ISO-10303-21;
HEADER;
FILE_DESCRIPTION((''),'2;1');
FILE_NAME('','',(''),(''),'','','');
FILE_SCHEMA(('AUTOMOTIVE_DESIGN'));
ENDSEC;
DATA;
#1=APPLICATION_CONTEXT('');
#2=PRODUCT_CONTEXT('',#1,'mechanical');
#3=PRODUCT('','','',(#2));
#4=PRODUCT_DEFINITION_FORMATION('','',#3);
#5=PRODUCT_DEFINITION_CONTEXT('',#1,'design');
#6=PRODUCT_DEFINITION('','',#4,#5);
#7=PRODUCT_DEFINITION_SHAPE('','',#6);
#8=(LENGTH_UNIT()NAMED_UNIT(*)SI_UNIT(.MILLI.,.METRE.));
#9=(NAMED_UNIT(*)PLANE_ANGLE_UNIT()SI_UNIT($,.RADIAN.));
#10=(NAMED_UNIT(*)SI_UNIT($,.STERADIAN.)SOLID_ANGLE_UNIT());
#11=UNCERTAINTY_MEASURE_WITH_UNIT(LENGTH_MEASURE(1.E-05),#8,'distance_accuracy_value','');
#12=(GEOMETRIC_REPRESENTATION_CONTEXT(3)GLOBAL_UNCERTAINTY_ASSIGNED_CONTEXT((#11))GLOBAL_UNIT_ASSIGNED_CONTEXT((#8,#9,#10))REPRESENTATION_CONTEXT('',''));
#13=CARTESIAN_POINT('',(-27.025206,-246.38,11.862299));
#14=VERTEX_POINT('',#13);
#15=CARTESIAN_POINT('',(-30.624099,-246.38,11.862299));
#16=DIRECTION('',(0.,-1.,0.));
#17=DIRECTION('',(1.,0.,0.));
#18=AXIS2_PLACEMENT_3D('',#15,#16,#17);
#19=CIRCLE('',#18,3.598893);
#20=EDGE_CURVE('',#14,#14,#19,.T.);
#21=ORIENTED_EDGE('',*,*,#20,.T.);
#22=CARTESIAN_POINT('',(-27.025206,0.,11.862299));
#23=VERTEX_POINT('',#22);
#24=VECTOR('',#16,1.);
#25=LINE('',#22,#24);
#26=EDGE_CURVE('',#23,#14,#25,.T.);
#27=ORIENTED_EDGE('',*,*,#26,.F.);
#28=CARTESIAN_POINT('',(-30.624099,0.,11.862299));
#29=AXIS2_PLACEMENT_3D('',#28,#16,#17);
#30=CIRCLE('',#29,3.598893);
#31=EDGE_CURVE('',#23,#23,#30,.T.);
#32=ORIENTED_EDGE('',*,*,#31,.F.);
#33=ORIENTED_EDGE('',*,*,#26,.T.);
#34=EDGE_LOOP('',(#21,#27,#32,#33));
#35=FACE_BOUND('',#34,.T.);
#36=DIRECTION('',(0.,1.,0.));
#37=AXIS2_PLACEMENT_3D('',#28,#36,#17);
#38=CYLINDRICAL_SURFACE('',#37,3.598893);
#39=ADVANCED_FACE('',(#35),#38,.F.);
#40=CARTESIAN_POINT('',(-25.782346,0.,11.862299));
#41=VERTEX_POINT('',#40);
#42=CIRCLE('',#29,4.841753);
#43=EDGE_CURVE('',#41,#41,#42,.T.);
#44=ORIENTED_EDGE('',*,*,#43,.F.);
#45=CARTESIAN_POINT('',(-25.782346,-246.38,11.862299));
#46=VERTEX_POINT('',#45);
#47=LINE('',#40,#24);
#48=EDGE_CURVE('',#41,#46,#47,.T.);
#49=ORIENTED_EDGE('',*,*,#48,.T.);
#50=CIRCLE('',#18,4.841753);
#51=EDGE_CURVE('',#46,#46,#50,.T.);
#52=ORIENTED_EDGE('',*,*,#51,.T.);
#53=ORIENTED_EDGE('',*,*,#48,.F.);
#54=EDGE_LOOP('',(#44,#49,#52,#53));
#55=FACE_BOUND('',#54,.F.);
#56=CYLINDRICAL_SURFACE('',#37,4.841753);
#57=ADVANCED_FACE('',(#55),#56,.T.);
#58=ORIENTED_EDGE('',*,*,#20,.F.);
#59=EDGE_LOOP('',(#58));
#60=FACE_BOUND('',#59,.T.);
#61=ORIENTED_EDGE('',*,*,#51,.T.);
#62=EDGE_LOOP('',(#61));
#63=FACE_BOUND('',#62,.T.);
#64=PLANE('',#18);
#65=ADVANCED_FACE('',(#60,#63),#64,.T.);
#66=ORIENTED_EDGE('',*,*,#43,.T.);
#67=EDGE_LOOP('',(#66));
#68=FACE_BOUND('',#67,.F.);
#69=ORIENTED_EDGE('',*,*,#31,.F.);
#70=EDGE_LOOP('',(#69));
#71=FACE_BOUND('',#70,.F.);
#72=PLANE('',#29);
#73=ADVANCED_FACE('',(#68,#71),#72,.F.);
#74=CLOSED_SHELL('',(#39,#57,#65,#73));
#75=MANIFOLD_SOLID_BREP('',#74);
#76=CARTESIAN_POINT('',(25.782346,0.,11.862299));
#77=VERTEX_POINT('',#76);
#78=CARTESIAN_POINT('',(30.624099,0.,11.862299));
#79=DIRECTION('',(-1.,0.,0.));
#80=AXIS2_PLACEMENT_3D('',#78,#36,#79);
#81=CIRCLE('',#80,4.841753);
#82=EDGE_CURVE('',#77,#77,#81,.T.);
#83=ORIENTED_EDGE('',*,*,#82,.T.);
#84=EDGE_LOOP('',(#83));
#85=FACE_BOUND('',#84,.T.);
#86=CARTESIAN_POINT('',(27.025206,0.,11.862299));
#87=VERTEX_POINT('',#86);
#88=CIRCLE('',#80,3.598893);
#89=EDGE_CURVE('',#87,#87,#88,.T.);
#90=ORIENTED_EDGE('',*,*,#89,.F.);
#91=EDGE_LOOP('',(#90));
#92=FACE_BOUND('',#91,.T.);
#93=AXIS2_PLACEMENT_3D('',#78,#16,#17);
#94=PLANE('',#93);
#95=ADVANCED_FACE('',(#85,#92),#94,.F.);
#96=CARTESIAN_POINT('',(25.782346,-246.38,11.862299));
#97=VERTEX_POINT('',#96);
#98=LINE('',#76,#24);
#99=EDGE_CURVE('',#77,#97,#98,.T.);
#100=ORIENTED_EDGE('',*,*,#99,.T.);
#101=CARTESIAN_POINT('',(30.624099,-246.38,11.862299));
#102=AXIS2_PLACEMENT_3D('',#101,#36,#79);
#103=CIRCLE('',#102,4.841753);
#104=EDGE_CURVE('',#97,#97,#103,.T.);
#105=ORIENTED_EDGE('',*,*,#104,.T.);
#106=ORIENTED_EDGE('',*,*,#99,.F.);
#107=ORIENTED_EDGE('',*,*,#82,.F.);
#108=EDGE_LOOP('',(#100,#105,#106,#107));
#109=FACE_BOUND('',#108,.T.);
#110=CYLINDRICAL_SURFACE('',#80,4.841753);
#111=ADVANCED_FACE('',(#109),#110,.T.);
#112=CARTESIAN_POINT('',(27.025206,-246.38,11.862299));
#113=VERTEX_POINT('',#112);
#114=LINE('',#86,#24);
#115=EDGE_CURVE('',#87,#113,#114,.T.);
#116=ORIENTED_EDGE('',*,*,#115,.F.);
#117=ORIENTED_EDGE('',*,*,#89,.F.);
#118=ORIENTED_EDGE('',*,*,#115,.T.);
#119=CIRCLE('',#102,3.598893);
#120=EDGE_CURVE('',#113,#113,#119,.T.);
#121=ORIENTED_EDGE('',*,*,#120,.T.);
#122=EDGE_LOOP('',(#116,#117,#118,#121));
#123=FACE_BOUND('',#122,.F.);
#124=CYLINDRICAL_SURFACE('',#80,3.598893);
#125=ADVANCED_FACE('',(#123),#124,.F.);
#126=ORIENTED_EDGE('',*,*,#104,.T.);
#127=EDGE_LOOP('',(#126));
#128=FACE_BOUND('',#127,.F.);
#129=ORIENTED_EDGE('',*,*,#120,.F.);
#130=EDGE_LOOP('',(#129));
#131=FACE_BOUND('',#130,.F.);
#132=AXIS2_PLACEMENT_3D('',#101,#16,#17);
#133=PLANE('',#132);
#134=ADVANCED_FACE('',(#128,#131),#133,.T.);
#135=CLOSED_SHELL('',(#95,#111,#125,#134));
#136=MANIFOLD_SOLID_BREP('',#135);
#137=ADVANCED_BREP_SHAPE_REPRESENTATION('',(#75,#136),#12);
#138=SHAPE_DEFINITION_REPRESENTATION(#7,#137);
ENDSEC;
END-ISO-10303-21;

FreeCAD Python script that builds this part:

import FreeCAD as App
import Part
import Sketcher
Q = App.Units.Quantity

doc = App.newDocument("Part")
body = doc.addObject("PartDesign::Body", "Body")

sketch1 = body.newObject("Sketcher::SketchObject", "Sketch")
sketch1.AttachmentSupport = (doc.getObject("XZ_Plane"), [""])
sketch1.MapMode = "FlatFace"
sketch1.addGeometry(Part.Circle(App.Vector(-30.624099, 11.862299, 0), App.Vector(0, 0, 1), 4.841753), False)
sketch1.addGeometry(Part.Circle(App.Vector(-30.624099, 11.862299, 0), App.Vector(0, 0, 1), 3.598893), False)
sketch1.addConstraint(Sketcher.Constraint("Coincident", 1, 3, 0, 3))
sketch1.addConstraint(Sketcher.Constraint("Diameter", 0, 9.683506))
sketch1.addConstraint(Sketcher.Constraint("Diameter", 1, 7.197786))
sketch1.addConstraint(Sketcher.Constraint("DistanceX", 0, 3, -1, 1, 30.624099))
sketch1.addConstraint(Sketcher.Constraint("DistanceY", -1, 1, 0, 3, 11.862299))
pad1 = body.newObject("PartDesign::Pad", "Pad")
pad1.Profile = sketch1
pad1.Length = Q("9.7 in")
body2 = doc.addObject("PartDesign::Body", "Body001")
doc.recompute()

mirroring = doc.addObject("Part::Mirroring", "Mirroring")
mirroring.Source = body
mirroring.Base = App.Vector(0, 0, 0)
mirroring.Normal = App.Vector(1, 0, 0)
body2.BaseFeature = mirroring
doc.recompute()
mirroring.Visibility = False

doc.recompute()
